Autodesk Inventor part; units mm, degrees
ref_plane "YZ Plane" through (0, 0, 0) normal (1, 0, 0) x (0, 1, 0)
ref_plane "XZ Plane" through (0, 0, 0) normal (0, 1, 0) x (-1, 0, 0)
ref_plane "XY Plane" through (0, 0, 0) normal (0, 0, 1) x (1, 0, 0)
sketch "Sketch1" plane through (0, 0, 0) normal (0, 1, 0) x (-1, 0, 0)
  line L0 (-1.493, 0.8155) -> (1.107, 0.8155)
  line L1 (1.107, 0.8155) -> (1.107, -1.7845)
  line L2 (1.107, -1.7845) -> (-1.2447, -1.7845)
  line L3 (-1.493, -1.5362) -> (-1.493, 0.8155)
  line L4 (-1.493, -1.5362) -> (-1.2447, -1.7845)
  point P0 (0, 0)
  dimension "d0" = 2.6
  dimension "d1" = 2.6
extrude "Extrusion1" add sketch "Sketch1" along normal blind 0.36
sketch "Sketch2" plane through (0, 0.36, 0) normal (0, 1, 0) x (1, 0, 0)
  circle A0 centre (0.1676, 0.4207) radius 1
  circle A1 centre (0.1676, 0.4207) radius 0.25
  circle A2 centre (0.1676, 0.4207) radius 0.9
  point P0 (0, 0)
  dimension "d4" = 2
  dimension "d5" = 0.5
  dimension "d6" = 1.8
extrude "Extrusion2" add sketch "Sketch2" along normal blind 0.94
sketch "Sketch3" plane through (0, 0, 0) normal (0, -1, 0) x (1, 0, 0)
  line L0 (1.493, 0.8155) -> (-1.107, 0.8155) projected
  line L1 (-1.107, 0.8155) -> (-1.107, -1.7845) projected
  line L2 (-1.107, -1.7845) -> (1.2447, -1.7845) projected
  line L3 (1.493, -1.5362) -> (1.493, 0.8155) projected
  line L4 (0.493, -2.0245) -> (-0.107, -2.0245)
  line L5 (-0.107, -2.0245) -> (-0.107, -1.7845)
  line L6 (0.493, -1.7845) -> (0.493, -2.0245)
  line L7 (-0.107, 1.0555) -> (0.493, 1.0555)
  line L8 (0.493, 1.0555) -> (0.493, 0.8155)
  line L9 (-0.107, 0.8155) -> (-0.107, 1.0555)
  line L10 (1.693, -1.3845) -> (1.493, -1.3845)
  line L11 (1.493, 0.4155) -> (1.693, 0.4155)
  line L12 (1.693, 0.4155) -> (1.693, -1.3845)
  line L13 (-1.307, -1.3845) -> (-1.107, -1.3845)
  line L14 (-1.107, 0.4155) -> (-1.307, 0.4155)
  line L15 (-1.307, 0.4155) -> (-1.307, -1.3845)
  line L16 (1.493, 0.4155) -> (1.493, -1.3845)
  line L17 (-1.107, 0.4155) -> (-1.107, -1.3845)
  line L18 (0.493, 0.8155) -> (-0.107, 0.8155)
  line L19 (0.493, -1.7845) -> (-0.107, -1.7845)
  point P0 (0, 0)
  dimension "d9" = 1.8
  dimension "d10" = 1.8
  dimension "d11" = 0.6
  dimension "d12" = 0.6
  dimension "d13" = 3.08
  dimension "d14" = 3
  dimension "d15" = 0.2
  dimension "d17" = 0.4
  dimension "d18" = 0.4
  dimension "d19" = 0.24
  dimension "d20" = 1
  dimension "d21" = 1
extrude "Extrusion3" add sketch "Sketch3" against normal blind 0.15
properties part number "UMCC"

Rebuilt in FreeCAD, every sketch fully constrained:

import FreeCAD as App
import Part
import Sketcher
from FreeCAD import Vector

doc = App.newDocument("Part")
params = doc.addObject("Spreadsheet::Sheet", "Params")
for row, (alias, value) in enumerate([
    ("sketch1_width", "2.6 mm"),
    ("pad1_length", "0.36 mm"),
    ("sketch2_diameter", "2 mm"),
    ("sketch2_diameter2", "1.8 mm"),
    ("sketch2_diameter3", "0.5 mm"),
    ("pad2_length", "0.94 mm"),
    ("sketch3_width", "0.6 mm"),
    ("sketch3_width2", "0.2 mm"),
    ("sketch3_height", "1.8 mm"),
    ("sketch3_height2", "0.24 mm"),
    ("pad3_length", "0.15 mm"),
], start=1):
    params.set(f"A{row}", alias)
    params.set(f"B{row}", "=" + value)
    params.setAlias(f"B{row}", alias)

body = doc.addObject("PartDesign::Body", "Body")

# Sketch on XZ plane
sketch1 = body.newObject("Sketcher::SketchObject", "Sketch")
sketch1.AttachmentSupport = (doc.getObject("XZ_Plane"), [""])
sketch1.MapMode = "FlatFace"
sketch1.addGeometry([
    Part.LineSegment(Vector(-1.107, 0.8155, 0), Vector(1.493, 0.8155, 0)),  # 0
    Part.LineSegment(Vector(1.493, 0.8155, 0), Vector(1.493, -1.5362, 0)),  # 1
    Part.LineSegment(Vector(1.493, -1.5362, 0), Vector(1.2447, -1.7845, 0)),  # 2
    Part.LineSegment(Vector(1.2447, -1.7845, 0), Vector(-1.107, -1.7845, 0)),  # 3
    Part.LineSegment(Vector(-1.107, -1.7845, 0), Vector(-1.107, 0.8155, 0)),  # 4
], False)
sketch1.addConstraint([
    Sketcher.Constraint("Coincident", 0, 2, 1, 1),
    Sketcher.Constraint("Coincident", 1, 2, 2, 1),
    Sketcher.Constraint("Coincident", 2, 2, 3, 1),
    Sketcher.Constraint("Coincident", 3, 2, 4, 1),
    Sketcher.Constraint("Coincident", 4, 2, 0, 1),
    Sketcher.Constraint("Horizontal", 0),
    Sketcher.Constraint("Vertical", 1),
    Sketcher.Constraint("Horizontal", 3),
    Sketcher.Constraint("Vertical", 4),
    Sketcher.Constraint("Equal", 3, 1),
    Sketcher.Constraint("Equal", 0, 4),
    Sketcher.Constraint("DistanceX", 0, 1, 0, 2, 2.6),
    Sketcher.Constraint("DistanceX", 3, 2, 3, 1, 2.3517),
    Sketcher.Constraint("DistanceX", -1, 1, 0, 2, 1.493),
    Sketcher.Constraint("DistanceY", -1, 1, 0, 2, 0.8155),
])
sketch1.setExpression("Constraints[11]", "Params.sketch1_width")
pad1 = body.newObject("PartDesign::Pad", "Pad")
pad1.Profile = sketch1
pad1.setExpression("Length", "Params.pad1_length")
pad1.Reversed = True

# Sketch on XZ plane
sketch2 = body.newObject("Sketcher::SketchObject", "Sketch001")
sketch2.AttachmentSupport = (doc.getObject("XZ_Plane"), [""])
sketch2.MapMode = "FlatFace"
sketch2.AttachmentOffset = App.Placement(Vector(0, 0, -0.36), App.Rotation())
sketch2.addGeometry([
    Part.Circle(Vector(0.1676, -0.4207, 0), Vector(0, 0, 1), 1),
    Part.Circle(Vector(0.1676, -0.4207, 0), Vector(0, 0, 1), 0.9),
    Part.Circle(Vector(0.1676, -0.4207, 0), Vector(0, 0, 1), 0.25),
], False)
sketch2.addConstraint([
    Sketcher.Constraint("Coincident", 1, 3, 0, 3),
    Sketcher.Constraint("Coincident", 2, 3, 0, 3),
    Sketcher.Constraint("Diameter", 0, 2.0),
    Sketcher.Constraint("Diameter", 1, 1.8),
    Sketcher.Constraint("Diameter", 2, 0.5),
    Sketcher.Constraint("DistanceX", -1, 1, 0, 3, 0.1676),
    Sketcher.Constraint("DistanceY", 0, 3, -1, 1, 0.4207),
])
sketch2.setExpression("Constraints[2]", "Params.sketch2_diameter")
sketch2.setExpression("Constraints[3]", "Params.sketch2_diameter2")
sketch2.setExpression("Constraints[4]", "Params.sketch2_diameter3")
pad2 = body.newObject("PartDesign::Pad", "Pad001")
pad2.Profile = sketch2
pad2.setExpression("Length", "Params.pad2_length")
pad2.Reversed = True

# Sketch on XZ plane
sketch3 = body.newObject("Sketcher::SketchObject", "Sketch002")
sketch3.AttachmentSupport = (doc.getObject("XZ_Plane"), [""])
sketch3.MapMode = "FlatFace"
sketch3.addGeometry([
    Part.LineSegment(Vector(0.493, -1.7845, 0), Vector(-0.107, -1.7845, 0)),  # 0
    Part.LineSegment(Vector(-0.107, -1.7845, 0), Vector(-0.107, -2.0245, 0)),  # 1
    Part.LineSegment(Vector(-0.107, -2.0245, 0), Vector(0.493, -2.0245, 0)),  # 2
    Part.LineSegment(Vector(0.493, -2.0245, 0), Vector(0.493, -1.7845, 0)),  # 3
    Part.LineSegment(Vector(-1.107, -1.3845, 0), Vector(-1.107, 0.4155, 0)),  # 4
    Part.LineSegment(Vector(-1.107, 0.4155, 0), Vector(-1.307, 0.4155, 0)),  # 5
    Part.LineSegment(Vector(-1.307, 0.4155, 0), Vector(-1.307, -1.3845, 0)),  # 6
    Part.LineSegment(Vector(-1.307, -1.3845, 0), Vector(-1.107, -1.3845, 0)),  # 7
    Part.LineSegment(Vector(-0.107, 0.8155, 0), Vector(0.493, 0.8155, 0)),  # 8
    Part.LineSegment(Vector(0.493, 0.8155, 0), Vector(0.493, 1.0555, 0)),  # 9
    Part.LineSegment(Vector(0.493, 1.0555, 0), Vector(-0.107, 1.0555, 0)),  # 10
    Part.LineSegment(Vector(-0.107, 1.0555, 0), Vector(-0.107, 0.8155, 0)),  # 11
    Part.LineSegment(Vector(1.693, 0.4155, 0), Vector(1.493, 0.4155, 0)),  # 12
    Part.LineSegment(Vector(1.493, 0.4155, 0), Vector(1.493, -1.3845, 0)),  # 13
    Part.LineSegment(Vector(1.493, -1.3845, 0), Vector(1.693, -1.3845, 0)),  # 14
    Part.LineSegment(Vector(1.693, -1.3845, 0), Vector(1.693, 0.4155, 0)),  # 15
], False)
sketch3.addConstraint([
    Sketcher.Constraint("Coincident", 0, 2, 1, 1),
    Sketcher.Constraint("Coincident", 1, 2, 2, 1),
    Sketcher.Constraint("Coincident", 2, 2, 3, 1),
    Sketcher.Constraint("Coincident", 3, 2, 0, 1),
    Sketcher.Constraint("Coincident", 4, 2, 5, 1),
    Sketcher.Constraint("Coincident", 5, 2, 6, 1),
    Sketcher.Constraint("Coincident", 6, 2, 7, 1),
    Sketcher.Constraint("Coincident", 7, 2, 4, 1),
    Sketcher.Constraint("Coincident", 8, 2, 9, 1),
    Sketcher.Constraint("Coincident", 9, 2, 10, 1),
    Sketcher.Constraint("Coincident", 10, 2, 11, 1),
    Sketcher.Constraint("Coincident", 11, 2, 8, 1),
    Sketcher.Constraint("Coincident", 12, 2, 13, 1),
    Sketcher.Constraint("Coincident", 13, 2, 14, 1),
    Sketcher.Constraint("Coincident", 14, 2, 15, 1),
    Sketcher.Constraint("Coincident", 15, 2, 12, 1),
    Sketcher.Constraint("Horizontal", 0),
    Sketcher.Constraint("Vertical", 1),
    Sketcher.Constraint("Horizontal", 2),
    Sketcher.Constraint("Vertical", 3),
    Sketcher.Constraint("Vertical", 4),
    Sketcher.Constraint("Horizontal", 5),
    Sketcher.Constraint("Vertical", 6),
    Sketcher.Constraint("Horizontal", 7),
    Sketcher.Constraint("Horizontal", 8),
    Sketcher.Constraint("Vertical", 9),
    Sketcher.Constraint("Horizontal", 10),
    Sketcher.Constraint("Vertical", 11),
    Sketcher.Constraint("Horizontal", 12),
    Sketcher.Constraint("Vertical", 13),
    Sketcher.Constraint("Horizontal", 14),
    Sketcher.Constraint("Vertical", 15),
    Sketcher.Constraint("Horizontal", 5, 2, 12, 2),
    Sketcher.Constraint("Horizontal", 7, 2, 13, 2),
    Sketcher.Constraint("Vertical", 3, 2, 8, 2),
    Sketcher.Constraint("Vertical", 1, 2, 10, 2),
    Sketcher.Constraint("Equal", 7, 12),
    Sketcher.Constraint("Equal", 3, 9),
    Sketcher.Constraint("DistanceX", 0, 2, 0, 1, 0.6),
    Sketcher.Constraint("DistanceX", 5, 2, 5, 1, 0.2),
    Sketcher.Constraint("DistanceY", 4, 1, 4, 2, 1.8),
    Sketcher.Constraint("DistanceX", 4, 2, 0, 2, 1.0),
    Sketcher.Constraint("DistanceX", 8, 2, 12, 2, 1.0),
    Sketcher.Constraint("DistanceY", 1, 2, 1, 1, 0.24),
    Sketcher.Constraint("DistanceY", 0, 2, 6, 2, 0.4),
    Sketcher.Constraint("DistanceY", 4, 2, 8, 2, 0.4),
    Sketcher.Constraint("DistanceX", 0, 2, -1, 1, 0.107),
    Sketcher.Constraint("DistanceY", 0, 2, -1, 1, 1.7845),
])
sketch3.setExpression("Constraints[38]", "Params.sketch3_width")
sketch3.setExpression("Constraints[39]", "Params.sketch3_width2")
sketch3.setExpression("Constraints[40]", "Params.sketch3_height")
sketch3.setExpression("Constraints[43]", "Params.sketch3_height2")
pad3 = body.newObject("PartDesign::Pad", "Pad002")
pad3.Profile = sketch3
pad3.setExpression("Length", "Params.pad3_length")
pad3.Reversed = True

doc.recompute()
